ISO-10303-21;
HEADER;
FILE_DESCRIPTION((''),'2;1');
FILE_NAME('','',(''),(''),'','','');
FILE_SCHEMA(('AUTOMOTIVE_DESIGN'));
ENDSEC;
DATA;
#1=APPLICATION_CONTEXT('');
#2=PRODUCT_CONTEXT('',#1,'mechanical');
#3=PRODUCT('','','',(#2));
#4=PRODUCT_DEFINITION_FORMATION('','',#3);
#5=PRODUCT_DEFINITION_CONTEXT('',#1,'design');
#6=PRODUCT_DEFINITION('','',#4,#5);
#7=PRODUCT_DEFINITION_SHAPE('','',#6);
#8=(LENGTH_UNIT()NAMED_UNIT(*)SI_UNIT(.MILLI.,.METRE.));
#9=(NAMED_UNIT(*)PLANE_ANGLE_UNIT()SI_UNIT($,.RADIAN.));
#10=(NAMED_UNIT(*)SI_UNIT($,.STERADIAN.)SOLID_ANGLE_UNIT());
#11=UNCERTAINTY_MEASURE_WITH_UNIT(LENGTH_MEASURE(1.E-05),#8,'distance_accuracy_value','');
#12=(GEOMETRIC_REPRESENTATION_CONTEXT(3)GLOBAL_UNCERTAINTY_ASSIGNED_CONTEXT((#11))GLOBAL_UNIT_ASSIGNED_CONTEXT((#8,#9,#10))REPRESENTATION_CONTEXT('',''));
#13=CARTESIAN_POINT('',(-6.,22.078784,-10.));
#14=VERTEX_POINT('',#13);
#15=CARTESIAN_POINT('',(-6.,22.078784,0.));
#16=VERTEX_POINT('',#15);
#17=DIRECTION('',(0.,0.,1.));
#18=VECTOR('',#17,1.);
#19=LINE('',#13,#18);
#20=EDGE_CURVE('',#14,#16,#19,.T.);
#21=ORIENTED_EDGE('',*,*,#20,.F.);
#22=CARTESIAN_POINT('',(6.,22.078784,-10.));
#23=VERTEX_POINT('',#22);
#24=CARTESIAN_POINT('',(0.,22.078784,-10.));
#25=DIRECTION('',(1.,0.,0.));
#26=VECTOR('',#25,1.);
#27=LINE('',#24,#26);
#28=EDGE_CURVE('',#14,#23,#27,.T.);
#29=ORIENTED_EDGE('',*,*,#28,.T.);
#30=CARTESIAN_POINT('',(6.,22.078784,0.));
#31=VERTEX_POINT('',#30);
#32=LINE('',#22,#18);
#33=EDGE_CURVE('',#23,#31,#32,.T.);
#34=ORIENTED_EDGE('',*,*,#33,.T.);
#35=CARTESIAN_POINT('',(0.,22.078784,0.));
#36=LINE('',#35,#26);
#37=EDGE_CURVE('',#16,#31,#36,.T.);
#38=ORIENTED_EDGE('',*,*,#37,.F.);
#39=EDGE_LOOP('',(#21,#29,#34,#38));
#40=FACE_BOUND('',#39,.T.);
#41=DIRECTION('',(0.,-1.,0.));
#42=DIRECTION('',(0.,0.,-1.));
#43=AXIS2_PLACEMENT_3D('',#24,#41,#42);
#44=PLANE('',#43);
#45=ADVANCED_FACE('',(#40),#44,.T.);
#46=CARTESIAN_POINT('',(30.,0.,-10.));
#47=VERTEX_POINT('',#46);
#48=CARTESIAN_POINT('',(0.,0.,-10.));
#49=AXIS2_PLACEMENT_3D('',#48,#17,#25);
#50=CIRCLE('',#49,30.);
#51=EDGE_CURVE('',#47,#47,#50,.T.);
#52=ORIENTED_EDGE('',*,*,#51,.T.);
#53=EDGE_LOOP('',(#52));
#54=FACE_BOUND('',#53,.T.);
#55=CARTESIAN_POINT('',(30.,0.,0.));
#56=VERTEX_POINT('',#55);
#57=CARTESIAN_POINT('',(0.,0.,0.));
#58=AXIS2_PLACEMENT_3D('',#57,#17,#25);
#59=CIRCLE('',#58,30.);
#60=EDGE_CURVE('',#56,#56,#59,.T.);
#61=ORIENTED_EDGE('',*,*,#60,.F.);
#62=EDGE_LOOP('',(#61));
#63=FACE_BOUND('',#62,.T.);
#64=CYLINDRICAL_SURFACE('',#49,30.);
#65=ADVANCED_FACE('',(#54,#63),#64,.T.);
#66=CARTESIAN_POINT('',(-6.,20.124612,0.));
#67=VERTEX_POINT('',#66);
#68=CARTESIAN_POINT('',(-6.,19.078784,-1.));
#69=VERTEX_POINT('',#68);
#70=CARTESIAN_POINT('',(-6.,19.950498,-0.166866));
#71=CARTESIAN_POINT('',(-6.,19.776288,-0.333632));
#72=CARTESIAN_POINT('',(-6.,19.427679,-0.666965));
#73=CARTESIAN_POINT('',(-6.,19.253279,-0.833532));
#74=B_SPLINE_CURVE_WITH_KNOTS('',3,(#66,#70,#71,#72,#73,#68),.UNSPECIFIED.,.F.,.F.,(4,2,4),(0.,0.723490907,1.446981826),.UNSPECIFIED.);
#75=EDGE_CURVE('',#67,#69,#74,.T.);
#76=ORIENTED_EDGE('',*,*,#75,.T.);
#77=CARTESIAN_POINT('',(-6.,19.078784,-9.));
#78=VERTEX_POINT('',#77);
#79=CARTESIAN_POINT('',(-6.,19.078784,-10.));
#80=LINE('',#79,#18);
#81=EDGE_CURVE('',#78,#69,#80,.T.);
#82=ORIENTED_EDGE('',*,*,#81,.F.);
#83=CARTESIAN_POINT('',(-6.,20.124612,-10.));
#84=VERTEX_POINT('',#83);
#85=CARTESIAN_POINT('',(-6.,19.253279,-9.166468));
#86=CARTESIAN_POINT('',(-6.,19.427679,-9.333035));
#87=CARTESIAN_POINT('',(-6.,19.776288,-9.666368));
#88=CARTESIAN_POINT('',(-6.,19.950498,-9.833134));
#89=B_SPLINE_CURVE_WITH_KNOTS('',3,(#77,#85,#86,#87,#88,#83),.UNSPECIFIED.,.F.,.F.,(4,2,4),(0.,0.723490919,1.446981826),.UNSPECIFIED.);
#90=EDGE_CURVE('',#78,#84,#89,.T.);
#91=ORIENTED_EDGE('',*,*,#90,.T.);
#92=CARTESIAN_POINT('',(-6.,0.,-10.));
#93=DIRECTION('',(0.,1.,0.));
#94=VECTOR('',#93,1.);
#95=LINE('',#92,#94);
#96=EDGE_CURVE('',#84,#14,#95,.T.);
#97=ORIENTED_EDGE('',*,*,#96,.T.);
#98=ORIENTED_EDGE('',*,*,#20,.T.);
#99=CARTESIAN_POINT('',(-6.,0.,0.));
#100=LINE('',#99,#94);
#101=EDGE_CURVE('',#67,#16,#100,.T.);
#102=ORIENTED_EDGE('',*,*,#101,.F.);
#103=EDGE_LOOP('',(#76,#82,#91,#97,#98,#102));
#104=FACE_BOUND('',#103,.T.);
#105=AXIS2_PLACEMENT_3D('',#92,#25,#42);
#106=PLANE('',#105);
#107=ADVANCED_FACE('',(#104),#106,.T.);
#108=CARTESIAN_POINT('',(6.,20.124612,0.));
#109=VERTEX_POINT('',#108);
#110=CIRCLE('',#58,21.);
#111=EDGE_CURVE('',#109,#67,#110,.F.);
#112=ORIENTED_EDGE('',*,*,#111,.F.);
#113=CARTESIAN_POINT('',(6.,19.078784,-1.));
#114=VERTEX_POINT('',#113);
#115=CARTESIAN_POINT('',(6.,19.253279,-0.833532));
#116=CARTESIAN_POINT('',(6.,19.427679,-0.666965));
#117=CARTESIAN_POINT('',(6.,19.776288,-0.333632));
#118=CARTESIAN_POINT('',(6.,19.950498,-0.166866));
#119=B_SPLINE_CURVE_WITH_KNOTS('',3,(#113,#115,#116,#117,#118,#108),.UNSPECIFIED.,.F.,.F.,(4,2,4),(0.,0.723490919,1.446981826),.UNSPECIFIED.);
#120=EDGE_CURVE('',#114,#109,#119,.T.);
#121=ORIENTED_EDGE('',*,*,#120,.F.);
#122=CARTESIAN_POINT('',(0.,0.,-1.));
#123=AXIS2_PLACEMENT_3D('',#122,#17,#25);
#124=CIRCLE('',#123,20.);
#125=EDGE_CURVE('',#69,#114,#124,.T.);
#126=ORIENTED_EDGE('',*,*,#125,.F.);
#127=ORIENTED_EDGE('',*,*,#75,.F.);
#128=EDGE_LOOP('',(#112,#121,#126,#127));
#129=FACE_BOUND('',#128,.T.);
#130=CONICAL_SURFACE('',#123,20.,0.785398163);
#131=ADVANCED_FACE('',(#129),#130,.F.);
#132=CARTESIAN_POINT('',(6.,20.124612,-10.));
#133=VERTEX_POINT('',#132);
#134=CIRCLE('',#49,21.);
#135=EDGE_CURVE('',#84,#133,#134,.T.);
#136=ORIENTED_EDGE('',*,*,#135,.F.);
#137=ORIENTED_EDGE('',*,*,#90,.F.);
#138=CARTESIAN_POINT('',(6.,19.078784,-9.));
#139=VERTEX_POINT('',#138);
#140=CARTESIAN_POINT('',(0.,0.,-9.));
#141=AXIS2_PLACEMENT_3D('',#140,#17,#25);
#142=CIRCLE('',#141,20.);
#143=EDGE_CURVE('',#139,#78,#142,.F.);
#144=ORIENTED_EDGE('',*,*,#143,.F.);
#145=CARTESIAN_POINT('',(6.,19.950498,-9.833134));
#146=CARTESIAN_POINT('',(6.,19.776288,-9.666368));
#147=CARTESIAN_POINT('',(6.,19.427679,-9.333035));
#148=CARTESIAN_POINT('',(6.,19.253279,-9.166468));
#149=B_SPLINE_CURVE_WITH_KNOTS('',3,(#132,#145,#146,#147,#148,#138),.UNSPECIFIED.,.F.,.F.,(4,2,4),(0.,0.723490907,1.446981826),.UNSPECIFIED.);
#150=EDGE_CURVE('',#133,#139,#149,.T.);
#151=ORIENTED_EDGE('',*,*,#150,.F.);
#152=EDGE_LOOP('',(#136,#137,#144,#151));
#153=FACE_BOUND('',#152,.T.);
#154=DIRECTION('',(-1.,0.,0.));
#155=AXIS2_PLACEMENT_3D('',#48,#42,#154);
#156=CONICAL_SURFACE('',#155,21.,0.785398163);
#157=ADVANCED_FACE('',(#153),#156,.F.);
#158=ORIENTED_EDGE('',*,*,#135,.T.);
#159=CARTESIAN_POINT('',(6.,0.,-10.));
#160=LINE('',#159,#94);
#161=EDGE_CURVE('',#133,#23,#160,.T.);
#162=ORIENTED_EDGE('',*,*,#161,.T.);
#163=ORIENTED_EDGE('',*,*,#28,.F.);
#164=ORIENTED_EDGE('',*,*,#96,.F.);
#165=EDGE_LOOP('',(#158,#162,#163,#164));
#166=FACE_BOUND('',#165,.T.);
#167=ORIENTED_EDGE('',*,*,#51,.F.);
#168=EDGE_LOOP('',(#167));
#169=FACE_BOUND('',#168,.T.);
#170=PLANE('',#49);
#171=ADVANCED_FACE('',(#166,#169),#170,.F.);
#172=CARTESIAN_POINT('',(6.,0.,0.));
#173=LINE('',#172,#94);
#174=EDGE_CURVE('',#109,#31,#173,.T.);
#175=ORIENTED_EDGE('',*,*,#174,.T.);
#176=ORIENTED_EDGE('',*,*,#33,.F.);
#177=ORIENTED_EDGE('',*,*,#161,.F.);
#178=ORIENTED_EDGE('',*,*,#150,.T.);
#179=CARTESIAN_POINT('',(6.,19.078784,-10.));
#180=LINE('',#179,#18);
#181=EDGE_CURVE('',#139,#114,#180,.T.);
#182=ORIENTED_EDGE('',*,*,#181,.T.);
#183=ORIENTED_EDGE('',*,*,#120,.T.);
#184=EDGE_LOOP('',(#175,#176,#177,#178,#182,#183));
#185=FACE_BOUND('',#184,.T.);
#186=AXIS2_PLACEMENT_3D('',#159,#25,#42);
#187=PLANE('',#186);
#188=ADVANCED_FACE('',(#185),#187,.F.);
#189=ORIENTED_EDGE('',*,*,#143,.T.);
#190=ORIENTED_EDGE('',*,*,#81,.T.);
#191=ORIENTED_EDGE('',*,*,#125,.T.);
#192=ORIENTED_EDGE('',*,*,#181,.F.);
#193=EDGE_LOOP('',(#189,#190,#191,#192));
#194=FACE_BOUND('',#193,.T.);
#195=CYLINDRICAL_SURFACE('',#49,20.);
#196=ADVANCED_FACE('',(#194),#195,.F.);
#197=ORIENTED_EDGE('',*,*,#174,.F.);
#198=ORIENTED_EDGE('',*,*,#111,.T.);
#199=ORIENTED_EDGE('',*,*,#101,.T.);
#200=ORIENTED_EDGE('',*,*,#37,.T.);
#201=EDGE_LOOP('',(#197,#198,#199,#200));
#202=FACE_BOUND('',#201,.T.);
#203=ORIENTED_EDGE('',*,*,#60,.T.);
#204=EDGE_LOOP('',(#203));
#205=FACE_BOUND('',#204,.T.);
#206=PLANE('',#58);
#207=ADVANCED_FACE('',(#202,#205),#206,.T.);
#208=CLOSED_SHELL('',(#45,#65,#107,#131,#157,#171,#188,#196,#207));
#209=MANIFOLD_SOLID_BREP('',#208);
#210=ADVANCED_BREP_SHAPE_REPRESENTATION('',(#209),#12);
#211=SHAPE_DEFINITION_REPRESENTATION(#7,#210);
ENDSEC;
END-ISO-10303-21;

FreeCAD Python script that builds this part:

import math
import FreeCAD as App
import Part
import Sketcher
from FreeCAD import Vector


def edges_at(feature, points):
    """Names of the edges that pass closest to the given points."""
    edges = feature.Shape.Edges
    near = lambda p: min(range(len(edges)), key=lambda i: edges[i].distToShape(Part.Vertex(*p))[0])
    return sorted({f"Edge{near(p) + 1}" for p in points})

doc = App.newDocument("Part")
body = doc.addObject("PartDesign::Body", "Body")

# Sketch on XY plane
sketch1 = doc.addObject("Sketcher::SketchObject", "Sketch")
body.addObject(sketch1)
sketch1.AttachmentSupport = (doc.XY_Plane, [""])
sketch1.MapMode = "FlatFace"
sketch1.addGeometry([
    Part.Circle(Vector(0, 0, 0), Vector(0, 0, 1), 30),  # 0
    Part.ArcOfCircle(Part.Circle(Vector(0, 0, 0), Vector(0, 0, 1), 20), math.radians(107.457603), math.radians(432.542397)),  # 1
    Part.LineSegment(Vector(-6, 19.078784, 0), Vector(-6, 22.078784, 0)),  # 2
    Part.LineSegment(Vector(-6, 22.078784, 0), Vector(6, 22.078784, 0)),  # 3
    Part.LineSegment(Vector(6, 22.078784, 0), Vector(6, 19.078784, 0)),  # 4
], False)
sketch1.addConstraint([
    Sketcher.Constraint("Coincident", 1, 1, 2, 1),
    Sketcher.Constraint("Coincident", 2, 2, 3, 1),
    Sketcher.Constraint("Coincident", 3, 2, 4, 1),
    Sketcher.Constraint("Coincident", 4, 2, 1, 2),
    Sketcher.Constraint("Vertical", 2),
    Sketcher.Constraint("Horizontal", 3),
    Sketcher.Constraint("Vertical", 4),
    Sketcher.Constraint("Coincident", 0, 3, -1, 1),
    Sketcher.Constraint("Coincident", 1, 3, -1, 1),
    Sketcher.Constraint("Horizontal", 1, 1, 4, 2),
    Sketcher.Constraint("Diameter", 0, 60.0),
    Sketcher.Constraint("Radius", 1, 20.0),
    Sketcher.Constraint("DistanceX", 3, 1, 3, 2, 12.0),
    Sketcher.Constraint("DistanceY", 2, 1, 2, 2, 3.0),
])
pad1 = doc.addObject("PartDesign::Pad", "Pad")
body.addObject(pad1)
pad1.Profile = sketch1
pad1.Length = 10
pad1.Reversed = True
doc.recompute()

chamfer = doc.addObject("PartDesign::Chamfer", "Chamfer")
body.addObject(chamfer)
chamfer.Base = (pad1, edges_at(pad1, [(0, -20, -10), (0, -20, 0)]))
chamfer.Size = 1

doc.recompute()
